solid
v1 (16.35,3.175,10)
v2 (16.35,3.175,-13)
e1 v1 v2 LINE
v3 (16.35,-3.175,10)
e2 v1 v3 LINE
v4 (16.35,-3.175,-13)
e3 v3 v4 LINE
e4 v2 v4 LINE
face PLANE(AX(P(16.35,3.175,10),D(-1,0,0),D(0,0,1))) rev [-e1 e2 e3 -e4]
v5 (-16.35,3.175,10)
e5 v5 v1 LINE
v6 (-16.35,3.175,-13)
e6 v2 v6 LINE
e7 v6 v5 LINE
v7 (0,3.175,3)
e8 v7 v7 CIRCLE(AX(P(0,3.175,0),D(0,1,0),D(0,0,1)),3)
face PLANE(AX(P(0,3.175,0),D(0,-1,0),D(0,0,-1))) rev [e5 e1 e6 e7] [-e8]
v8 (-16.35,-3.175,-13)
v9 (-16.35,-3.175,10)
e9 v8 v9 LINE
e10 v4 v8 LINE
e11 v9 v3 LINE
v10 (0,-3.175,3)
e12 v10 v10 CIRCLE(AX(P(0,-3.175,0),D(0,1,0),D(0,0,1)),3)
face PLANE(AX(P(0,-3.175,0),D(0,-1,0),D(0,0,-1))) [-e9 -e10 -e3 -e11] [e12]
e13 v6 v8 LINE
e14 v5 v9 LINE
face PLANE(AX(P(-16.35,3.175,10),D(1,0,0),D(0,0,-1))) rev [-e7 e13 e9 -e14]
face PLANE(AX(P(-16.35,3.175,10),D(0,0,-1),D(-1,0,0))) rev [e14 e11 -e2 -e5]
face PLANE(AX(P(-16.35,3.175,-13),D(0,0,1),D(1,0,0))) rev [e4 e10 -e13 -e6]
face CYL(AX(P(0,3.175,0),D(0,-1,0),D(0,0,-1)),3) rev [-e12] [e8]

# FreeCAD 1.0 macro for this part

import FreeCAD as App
import Part
import Sketcher
from FreeCAD import Vector
Q = App.Units.Quantity


def add_polygon(sketch, points):
    """Adds a closed chain of lines whose ends are joined by coincident constraints."""
    first, n = sketch.GeometryCount, len(points)
    for a, b in zip(points, points[1:] + points[:1]):
        sketch.addGeometry(Part.LineSegment(App.Vector(*a, 0), App.Vector(*b, 0)), False)
    for i in range(n):
        sketch.addConstraint(Sketcher.Constraint("Coincident", first + i, 2, first + (i + 1) % n, 1))

doc = App.newDocument("Part")
body = doc.addObject("PartDesign::Body", "Body")

sketch1 = doc.addObject("Sketcher::SketchObject", "Sketch")
body.addObject(sketch1)
sketch1.AttachmentSupport = (doc.XZ_Plane, [""])
sketch1.MapMode = "FlatFace"
add_polygon(sketch1, [(-16.4, -13), (-16.4, 10), (16.4, 10), (16.4, -13)])
sketch1.addGeometry(Part.Circle(Vector(0, 0, 0), Vector(0, 0, 1), 3), False)
sketch1.addConstraint([
    Sketcher.Constraint("Vertical", 0),
    Sketcher.Constraint("Horizontal", 1),
    Sketcher.Constraint("Vertical", 2),
    Sketcher.Constraint("Horizontal", 3),
    Sketcher.Constraint("Coincident", 4, 3, -1, 1),
    Sketcher.Constraint("Diameter", 4, Q("6 mm")),
    Sketcher.Constraint("DistanceY", 0, 1, 0, 2, Q("23 mm")),
    Sketcher.Constraint("DistanceX", 1, 1, 1, 2, Q("32.7 mm")),
    Sketcher.Constraint("DistanceY", -1, 1, 0, 2, Q("10 mm")),
    Sketcher.Constraint("DistanceX", 0, 2, -1, 1, Q("16.35 mm")),
])
pad1 = doc.addObject("PartDesign::Pad", "Pad")
body.addObject(pad1)
pad1.Profile = sketch1
pad1.Length = 6.35
pad1.Midplane = True

doc.recompute()
